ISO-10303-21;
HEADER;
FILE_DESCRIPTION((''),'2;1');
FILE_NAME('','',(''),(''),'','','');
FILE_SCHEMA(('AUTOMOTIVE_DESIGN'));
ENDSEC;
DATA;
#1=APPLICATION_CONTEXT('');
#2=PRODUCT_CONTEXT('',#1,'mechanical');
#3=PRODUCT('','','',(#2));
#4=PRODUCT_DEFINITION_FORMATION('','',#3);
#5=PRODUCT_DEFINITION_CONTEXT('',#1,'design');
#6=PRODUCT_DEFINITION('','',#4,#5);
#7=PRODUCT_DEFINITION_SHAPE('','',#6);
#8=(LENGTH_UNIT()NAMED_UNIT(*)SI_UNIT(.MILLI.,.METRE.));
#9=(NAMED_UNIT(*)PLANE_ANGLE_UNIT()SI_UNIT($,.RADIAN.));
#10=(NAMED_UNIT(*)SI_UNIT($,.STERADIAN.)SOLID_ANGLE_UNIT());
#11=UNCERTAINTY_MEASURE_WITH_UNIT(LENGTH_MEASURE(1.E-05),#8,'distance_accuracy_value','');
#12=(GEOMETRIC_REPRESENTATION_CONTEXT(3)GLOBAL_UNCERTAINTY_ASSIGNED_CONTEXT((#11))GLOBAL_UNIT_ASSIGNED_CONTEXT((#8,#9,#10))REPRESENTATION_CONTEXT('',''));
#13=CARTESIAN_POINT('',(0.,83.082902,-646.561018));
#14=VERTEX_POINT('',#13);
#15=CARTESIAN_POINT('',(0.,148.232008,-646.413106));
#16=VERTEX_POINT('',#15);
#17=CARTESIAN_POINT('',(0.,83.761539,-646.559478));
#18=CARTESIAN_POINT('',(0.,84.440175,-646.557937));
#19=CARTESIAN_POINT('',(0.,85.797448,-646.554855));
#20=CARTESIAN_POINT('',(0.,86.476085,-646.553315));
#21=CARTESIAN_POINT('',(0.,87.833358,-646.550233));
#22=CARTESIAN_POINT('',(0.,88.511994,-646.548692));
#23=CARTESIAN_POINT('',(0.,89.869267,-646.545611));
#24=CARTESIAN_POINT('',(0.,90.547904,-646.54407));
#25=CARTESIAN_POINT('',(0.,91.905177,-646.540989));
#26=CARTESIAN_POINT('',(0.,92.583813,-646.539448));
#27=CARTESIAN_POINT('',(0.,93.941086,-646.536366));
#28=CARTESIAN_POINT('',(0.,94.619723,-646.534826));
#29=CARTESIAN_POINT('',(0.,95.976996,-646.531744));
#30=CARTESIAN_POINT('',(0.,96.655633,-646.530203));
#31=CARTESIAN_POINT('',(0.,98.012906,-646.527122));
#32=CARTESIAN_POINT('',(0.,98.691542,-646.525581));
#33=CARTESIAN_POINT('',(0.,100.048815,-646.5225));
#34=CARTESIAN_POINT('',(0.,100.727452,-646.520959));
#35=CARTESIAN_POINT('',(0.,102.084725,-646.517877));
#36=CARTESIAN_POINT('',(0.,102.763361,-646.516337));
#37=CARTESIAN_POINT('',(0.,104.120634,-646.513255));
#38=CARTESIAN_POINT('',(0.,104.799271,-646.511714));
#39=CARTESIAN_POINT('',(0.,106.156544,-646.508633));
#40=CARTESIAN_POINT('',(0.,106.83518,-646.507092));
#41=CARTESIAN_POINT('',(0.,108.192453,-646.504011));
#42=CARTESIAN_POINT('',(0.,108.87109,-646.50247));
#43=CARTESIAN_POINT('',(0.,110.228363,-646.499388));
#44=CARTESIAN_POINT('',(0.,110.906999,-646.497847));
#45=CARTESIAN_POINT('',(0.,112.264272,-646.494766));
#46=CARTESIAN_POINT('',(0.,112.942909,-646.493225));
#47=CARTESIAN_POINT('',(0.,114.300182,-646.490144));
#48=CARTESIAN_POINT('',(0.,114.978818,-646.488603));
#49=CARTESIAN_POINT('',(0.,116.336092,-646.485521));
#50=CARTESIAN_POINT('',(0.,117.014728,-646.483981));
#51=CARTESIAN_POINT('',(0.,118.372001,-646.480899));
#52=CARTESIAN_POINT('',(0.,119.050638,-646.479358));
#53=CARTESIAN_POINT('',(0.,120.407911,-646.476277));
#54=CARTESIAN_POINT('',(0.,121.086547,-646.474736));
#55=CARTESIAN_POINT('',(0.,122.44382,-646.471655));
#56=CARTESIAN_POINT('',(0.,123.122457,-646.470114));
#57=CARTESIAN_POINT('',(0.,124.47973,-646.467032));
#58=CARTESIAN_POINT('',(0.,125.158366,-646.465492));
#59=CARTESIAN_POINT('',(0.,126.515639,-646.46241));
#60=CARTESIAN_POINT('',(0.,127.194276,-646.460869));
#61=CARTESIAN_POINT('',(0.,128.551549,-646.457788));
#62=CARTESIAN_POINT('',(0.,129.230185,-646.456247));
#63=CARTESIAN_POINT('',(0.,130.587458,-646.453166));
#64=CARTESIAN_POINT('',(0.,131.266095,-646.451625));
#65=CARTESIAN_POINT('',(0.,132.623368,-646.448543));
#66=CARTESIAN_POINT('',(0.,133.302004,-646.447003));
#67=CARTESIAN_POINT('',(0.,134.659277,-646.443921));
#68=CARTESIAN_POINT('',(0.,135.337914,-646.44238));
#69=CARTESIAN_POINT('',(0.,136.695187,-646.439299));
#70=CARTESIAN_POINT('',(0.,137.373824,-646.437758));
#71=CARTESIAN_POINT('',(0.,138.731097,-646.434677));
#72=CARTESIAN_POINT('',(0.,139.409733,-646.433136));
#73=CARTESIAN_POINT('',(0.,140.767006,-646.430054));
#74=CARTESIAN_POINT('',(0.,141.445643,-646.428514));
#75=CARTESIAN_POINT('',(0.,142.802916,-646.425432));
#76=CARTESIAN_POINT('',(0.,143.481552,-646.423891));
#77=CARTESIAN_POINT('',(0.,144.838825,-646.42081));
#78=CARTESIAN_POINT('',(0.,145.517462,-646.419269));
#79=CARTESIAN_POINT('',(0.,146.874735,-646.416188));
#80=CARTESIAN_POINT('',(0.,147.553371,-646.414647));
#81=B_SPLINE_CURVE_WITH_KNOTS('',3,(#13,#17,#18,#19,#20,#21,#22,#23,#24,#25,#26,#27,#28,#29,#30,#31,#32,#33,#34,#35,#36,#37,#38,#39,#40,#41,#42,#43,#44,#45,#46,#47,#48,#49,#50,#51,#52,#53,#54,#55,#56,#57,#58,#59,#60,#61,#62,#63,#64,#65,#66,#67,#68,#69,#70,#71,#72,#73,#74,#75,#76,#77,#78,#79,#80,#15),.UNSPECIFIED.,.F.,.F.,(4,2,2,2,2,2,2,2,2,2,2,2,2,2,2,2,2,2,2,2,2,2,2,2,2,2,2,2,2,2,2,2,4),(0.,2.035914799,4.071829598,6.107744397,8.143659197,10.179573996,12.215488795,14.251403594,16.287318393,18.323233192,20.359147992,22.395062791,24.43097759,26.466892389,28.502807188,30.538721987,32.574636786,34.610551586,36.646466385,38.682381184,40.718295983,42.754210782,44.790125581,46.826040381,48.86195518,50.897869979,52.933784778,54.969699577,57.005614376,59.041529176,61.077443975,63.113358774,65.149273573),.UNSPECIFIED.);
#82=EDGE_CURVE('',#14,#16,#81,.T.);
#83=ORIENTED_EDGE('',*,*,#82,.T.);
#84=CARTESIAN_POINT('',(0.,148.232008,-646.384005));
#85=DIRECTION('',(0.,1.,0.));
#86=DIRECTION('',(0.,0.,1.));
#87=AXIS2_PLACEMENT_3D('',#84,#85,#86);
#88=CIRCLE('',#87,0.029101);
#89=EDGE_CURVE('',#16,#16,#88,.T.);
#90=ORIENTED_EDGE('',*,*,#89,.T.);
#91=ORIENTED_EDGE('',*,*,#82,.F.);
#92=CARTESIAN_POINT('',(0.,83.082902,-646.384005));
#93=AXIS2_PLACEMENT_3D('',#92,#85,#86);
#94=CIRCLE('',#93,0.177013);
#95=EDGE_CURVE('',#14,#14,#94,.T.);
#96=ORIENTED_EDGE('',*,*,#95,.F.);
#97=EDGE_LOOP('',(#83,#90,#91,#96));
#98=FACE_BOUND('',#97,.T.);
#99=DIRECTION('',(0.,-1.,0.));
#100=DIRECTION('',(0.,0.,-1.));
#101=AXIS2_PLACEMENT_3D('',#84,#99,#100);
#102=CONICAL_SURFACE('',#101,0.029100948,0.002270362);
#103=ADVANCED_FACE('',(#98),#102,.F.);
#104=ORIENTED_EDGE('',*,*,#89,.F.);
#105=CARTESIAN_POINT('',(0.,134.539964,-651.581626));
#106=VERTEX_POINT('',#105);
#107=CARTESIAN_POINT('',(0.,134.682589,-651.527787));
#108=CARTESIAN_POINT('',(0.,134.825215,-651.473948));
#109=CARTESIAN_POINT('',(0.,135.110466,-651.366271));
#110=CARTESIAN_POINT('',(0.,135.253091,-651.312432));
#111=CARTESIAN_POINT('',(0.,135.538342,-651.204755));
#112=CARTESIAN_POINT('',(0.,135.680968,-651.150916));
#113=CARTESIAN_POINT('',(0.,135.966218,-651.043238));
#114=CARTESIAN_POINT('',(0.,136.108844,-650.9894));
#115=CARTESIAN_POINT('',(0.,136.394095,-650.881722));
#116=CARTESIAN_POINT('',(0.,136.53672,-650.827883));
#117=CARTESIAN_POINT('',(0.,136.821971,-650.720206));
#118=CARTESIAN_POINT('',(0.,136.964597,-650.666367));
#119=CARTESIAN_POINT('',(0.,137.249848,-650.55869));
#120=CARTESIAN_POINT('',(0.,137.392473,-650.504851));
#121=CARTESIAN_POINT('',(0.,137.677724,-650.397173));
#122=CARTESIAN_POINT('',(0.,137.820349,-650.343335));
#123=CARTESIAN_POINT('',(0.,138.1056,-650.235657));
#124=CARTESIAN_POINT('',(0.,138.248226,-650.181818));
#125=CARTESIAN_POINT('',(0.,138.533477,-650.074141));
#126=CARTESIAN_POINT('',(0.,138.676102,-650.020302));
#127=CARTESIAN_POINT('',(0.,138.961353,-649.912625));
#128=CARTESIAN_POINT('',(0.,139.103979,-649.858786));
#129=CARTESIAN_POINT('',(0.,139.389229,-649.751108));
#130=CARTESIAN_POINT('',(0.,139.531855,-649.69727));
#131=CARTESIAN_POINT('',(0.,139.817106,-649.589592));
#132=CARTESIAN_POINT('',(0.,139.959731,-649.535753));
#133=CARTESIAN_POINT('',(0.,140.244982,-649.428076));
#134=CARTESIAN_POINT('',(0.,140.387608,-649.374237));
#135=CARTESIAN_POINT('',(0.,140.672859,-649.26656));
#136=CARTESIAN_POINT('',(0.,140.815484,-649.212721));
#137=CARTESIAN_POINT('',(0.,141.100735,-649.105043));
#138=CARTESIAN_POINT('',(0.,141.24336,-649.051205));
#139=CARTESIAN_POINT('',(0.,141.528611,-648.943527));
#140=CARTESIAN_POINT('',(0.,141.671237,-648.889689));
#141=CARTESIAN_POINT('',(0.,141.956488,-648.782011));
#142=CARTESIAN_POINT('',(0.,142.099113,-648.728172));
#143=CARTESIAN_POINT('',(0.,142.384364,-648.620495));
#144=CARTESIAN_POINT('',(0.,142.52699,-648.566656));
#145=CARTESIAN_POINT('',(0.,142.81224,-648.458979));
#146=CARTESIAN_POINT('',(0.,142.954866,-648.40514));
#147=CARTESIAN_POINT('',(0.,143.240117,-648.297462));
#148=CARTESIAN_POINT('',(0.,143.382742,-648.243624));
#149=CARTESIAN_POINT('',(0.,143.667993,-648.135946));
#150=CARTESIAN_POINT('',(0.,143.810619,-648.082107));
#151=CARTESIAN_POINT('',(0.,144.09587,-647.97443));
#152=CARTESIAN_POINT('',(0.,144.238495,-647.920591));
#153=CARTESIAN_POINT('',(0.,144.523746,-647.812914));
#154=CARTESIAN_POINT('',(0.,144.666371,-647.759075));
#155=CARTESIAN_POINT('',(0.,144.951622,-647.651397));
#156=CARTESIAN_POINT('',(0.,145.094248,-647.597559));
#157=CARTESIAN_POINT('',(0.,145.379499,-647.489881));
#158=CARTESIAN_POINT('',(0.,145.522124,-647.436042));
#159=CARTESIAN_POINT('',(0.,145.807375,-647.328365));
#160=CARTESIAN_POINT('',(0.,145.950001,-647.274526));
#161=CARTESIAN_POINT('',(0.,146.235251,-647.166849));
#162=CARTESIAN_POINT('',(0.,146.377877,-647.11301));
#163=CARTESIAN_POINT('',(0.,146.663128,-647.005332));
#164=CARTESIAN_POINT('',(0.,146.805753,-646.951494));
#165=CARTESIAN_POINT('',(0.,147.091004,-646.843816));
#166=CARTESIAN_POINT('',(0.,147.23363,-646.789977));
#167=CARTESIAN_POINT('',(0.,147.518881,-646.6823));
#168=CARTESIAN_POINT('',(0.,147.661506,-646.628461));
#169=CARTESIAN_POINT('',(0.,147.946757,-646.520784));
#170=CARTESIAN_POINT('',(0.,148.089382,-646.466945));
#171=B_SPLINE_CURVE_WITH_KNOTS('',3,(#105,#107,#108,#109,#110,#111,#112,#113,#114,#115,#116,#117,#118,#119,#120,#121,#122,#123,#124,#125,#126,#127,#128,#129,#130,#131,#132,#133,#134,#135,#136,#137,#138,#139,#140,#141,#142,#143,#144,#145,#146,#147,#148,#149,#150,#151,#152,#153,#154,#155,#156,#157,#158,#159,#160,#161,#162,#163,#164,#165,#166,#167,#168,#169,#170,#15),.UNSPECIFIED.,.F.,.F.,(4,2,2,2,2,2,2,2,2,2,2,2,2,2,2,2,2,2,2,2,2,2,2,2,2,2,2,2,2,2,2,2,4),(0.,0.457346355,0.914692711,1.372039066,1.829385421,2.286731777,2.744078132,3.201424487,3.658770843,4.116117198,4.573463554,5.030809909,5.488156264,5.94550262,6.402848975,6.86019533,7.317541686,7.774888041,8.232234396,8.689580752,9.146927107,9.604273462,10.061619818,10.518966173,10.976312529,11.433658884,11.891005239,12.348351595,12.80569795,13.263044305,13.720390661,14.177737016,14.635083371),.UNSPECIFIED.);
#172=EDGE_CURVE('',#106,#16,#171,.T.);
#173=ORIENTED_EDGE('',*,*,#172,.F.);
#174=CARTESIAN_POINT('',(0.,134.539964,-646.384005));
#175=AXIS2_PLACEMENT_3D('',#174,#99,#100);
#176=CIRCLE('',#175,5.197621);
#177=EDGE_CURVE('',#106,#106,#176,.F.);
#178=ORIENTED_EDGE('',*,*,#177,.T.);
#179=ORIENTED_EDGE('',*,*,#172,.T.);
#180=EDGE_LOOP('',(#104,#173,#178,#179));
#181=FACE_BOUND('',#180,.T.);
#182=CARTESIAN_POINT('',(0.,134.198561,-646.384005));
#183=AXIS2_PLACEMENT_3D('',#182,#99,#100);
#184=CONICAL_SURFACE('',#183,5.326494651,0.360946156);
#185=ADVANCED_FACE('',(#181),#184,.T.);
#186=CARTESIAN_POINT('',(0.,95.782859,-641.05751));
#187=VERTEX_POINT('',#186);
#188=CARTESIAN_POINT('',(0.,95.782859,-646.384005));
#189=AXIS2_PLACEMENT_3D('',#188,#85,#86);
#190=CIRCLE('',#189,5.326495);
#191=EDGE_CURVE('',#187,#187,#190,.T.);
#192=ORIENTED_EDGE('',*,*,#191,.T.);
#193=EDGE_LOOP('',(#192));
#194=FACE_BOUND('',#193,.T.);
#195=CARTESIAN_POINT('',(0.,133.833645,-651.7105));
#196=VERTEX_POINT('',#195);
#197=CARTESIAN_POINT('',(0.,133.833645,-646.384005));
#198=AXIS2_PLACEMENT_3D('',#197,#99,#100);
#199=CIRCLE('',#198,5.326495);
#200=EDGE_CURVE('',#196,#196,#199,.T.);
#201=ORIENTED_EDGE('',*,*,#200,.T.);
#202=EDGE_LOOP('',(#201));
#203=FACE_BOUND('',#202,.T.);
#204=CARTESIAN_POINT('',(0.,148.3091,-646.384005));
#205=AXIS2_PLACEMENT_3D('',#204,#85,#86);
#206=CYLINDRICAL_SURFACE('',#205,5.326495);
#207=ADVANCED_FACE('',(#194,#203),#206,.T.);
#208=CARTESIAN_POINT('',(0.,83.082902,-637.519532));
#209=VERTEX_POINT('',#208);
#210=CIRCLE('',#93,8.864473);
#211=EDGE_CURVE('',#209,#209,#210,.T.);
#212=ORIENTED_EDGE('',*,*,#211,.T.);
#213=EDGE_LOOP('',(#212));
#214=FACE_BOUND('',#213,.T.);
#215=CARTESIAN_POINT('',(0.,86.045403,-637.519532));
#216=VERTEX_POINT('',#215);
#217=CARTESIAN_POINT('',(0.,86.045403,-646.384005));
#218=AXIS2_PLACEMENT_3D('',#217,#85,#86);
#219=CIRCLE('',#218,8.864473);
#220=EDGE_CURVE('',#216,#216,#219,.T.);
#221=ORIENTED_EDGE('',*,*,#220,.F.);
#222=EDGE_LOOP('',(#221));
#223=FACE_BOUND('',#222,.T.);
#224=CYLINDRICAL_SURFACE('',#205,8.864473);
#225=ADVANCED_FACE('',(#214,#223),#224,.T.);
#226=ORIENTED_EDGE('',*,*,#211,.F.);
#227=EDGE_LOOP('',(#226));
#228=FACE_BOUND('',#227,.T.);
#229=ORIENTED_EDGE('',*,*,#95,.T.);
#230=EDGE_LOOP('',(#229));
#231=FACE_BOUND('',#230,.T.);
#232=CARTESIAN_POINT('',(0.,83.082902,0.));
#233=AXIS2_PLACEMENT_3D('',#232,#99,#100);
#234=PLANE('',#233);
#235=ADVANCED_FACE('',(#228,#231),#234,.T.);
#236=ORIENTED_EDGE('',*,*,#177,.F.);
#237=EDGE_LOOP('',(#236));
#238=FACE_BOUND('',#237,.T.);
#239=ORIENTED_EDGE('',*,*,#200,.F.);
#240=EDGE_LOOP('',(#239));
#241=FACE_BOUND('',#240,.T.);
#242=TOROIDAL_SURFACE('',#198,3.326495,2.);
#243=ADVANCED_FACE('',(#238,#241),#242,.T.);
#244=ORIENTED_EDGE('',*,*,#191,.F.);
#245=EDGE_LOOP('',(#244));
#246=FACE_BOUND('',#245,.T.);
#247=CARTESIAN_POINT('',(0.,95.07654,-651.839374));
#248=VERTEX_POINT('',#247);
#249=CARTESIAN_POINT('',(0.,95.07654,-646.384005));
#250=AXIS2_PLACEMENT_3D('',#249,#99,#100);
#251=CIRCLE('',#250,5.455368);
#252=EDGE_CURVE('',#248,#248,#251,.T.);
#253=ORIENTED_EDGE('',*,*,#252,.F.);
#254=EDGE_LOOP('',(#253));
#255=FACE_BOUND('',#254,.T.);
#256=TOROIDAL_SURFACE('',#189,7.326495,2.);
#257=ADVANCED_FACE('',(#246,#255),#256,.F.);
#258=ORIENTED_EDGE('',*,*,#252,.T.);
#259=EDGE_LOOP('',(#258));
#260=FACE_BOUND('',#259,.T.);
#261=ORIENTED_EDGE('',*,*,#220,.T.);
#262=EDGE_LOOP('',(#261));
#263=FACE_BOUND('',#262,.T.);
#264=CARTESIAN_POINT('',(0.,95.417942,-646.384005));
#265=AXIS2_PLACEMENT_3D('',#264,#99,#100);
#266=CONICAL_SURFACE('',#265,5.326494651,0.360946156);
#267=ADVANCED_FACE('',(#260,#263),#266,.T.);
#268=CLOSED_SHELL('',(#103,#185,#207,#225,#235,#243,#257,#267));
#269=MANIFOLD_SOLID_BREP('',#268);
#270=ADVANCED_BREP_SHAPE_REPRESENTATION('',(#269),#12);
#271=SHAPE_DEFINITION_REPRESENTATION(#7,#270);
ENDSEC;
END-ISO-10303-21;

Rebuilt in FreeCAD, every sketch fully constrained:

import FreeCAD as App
import Part
import Sketcher


def edges_at(feature, points):
    """Names of the edges that pass closest to the given points."""
    edges = feature.Shape.Edges
    near = lambda p: min(range(len(edges)), key=lambda i: edges[i].distToShape(Part.Vertex(*p))[0])
    return sorted({f"Edge{near(p) + 1}" for p in points})


def add_polygon(sketch, points):
    """Adds a closed chain of lines whose ends are joined by coincident constraints."""
    first, n = sketch.GeometryCount, len(points)
    for a, b in zip(points, points[1:] + points[:1]):
        sketch.addGeometry(Part.LineSegment(App.Vector(*a, 0), App.Vector(*b, 0)), False)
    for i in range(n):
        sketch.addConstraint(Sketcher.Constraint("Coincident", first + i, 2, first + (i + 1) % n, 1))

doc = App.newDocument("Part")
body = doc.addObject("PartDesign::Body", "Body")

# Sketch on YZ plane
sketch1 = body.newObject("Sketcher::SketchObject", "Sketch")
sketch1.AttachmentSupport = (doc.getObject("YZ_Plane"), [""])
sketch1.MapMode = "FlatFace"
add_polygon(sketch1, [(83.1, -646.2), (148.2, -646.4), (134.2, -641.1), (95.4, -641.1), (86, -637.5), (83.1, -637.5)])  # lines 0-5
sketch1.addGeometry(Part.LineSegment(App.Vector(148.2, -646.4, 0), App.Vector(83.1, -646.4, 0)), True)  # axis
sketch1.addConstraint([
    Sketcher.Constraint("Horizontal", 2),
    Sketcher.Constraint("Horizontal", 4),
    Sketcher.Constraint("Vertical", 5),
    Sketcher.Constraint("Horizontal", 6),
    Sketcher.Constraint("Parallel", 1, 3),
    Sketcher.Constraint("Vertical", 0, 2, 6, 1),
    Sketcher.Constraint("Vertical", 5, 2, 6, 2),
    Sketcher.Constraint("Distance", 1, 15.0),
    Sketcher.Constraint("DistanceX", 4, 2, 4, 1, 2.962501),
    Sketcher.Constraint("DistanceX", 2, 2, 2, 1, 38.780619),
    Sketcher.Constraint("DistanceY", 5, 2, 5, 1, 8.68746),
    Sketcher.Constraint("DistanceY", 6, 1, 0, 2, 0.029101),
    Sketcher.Constraint("DistanceX", 6, 2, 6, 1, 65.149106),
    Sketcher.Constraint("DistanceX", -1, 1, 1, 2, 134.198561),
    Sketcher.Constraint("DistanceY", 1, 2, -1, 1, 641.05751),
    Sketcher.Constraint("DistanceY", 5, 2, -1, 1, 646.206992),
])
revolution = body.newObject("PartDesign::Revolution", "Revolution")
revolution.Profile = sketch1
revolution.ReferenceAxis = (sketch1, ["Axis0"])
revolution.Angle = 360
doc.recompute()

fillet = body.newObject("PartDesign::Fillet", "Fillet")
fillet.Base = (revolution, edges_at(revolution, [(0, 95.418, -651.71)]))
fillet.Radius = 2
doc.recompute()

fillet2 = body.newObject("PartDesign::Fillet", "Fillet001")
fillet2.Base = (fillet, edges_at(fillet, [(0, 134.199, -651.71)]))
fillet2.Radius = 2

doc.recompute()
